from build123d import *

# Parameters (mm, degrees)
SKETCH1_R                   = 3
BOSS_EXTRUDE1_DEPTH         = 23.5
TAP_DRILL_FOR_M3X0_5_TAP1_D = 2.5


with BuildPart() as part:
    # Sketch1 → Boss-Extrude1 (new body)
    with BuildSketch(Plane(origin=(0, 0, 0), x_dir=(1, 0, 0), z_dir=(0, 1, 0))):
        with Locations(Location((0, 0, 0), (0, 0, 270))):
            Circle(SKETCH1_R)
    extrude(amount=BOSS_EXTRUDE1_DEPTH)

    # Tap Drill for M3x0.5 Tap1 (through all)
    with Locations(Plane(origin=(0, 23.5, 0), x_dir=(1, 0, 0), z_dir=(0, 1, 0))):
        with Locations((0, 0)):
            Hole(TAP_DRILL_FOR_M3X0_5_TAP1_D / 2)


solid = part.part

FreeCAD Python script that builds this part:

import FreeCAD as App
import Part
import Sketcher
from FreeCAD import Vector
Q = App.Units.Quantity

doc = App.newDocument("Part")
body = doc.addObject("PartDesign::Body", "Body")

# Sketch on XZ plane
sketch1 = body.newObject("Sketcher::SketchObject", "Sketch")
sketch1.AttachmentSupport = (doc.getObject("XZ_Plane"), [""])
sketch1.MapMode = "FlatFace"
sketch1.addGeometry(Part.Circle(Vector(0, 0, 0), Vector(0, 0, 1), 3), False)
sketch1.addConstraint([
    Sketcher.Constraint("Coincident", 0, 3, -1, 1),
    Sketcher.Constraint("Diameter", 0, Q("6 mm")),
])
pad1 = body.newObject("PartDesign::Pad", "Pad")
pad1.Profile = sketch1
pad1.Length = 23.5
pad1.Reversed = True

# Sketch on XZ plane
sketch2 = body.newObject("Sketcher::SketchObject", "Sketch001")
sketch2.AttachmentSupport = (doc.getObject("XZ_Plane"), [""])
sketch2.MapMode = "FlatFace"
sketch2.AttachmentOffset = App.Placement(Vector(0, 0, -23.5), App.Rotation())
sketch2.addGeometry(Part.Circle(Vector(0, 0, 0), Vector(0, 0, 1), 1.25), False)
sketch2.addConstraint([
    Sketcher.Constraint("Coincident", 0, 3, -1, 1),
    Sketcher.Constraint("Diameter", 0, Q("2.5 mm")),
])
doc.recompute()
hole = body.newObject("PartDesign::Hole", "Hole")
hole.Profile = sketch2
hole.ThreadType = "None"
hole.Diameter = 2.5
hole.DepthType = "ThroughAll"
hole.Reversed = True

doc.recompute()
